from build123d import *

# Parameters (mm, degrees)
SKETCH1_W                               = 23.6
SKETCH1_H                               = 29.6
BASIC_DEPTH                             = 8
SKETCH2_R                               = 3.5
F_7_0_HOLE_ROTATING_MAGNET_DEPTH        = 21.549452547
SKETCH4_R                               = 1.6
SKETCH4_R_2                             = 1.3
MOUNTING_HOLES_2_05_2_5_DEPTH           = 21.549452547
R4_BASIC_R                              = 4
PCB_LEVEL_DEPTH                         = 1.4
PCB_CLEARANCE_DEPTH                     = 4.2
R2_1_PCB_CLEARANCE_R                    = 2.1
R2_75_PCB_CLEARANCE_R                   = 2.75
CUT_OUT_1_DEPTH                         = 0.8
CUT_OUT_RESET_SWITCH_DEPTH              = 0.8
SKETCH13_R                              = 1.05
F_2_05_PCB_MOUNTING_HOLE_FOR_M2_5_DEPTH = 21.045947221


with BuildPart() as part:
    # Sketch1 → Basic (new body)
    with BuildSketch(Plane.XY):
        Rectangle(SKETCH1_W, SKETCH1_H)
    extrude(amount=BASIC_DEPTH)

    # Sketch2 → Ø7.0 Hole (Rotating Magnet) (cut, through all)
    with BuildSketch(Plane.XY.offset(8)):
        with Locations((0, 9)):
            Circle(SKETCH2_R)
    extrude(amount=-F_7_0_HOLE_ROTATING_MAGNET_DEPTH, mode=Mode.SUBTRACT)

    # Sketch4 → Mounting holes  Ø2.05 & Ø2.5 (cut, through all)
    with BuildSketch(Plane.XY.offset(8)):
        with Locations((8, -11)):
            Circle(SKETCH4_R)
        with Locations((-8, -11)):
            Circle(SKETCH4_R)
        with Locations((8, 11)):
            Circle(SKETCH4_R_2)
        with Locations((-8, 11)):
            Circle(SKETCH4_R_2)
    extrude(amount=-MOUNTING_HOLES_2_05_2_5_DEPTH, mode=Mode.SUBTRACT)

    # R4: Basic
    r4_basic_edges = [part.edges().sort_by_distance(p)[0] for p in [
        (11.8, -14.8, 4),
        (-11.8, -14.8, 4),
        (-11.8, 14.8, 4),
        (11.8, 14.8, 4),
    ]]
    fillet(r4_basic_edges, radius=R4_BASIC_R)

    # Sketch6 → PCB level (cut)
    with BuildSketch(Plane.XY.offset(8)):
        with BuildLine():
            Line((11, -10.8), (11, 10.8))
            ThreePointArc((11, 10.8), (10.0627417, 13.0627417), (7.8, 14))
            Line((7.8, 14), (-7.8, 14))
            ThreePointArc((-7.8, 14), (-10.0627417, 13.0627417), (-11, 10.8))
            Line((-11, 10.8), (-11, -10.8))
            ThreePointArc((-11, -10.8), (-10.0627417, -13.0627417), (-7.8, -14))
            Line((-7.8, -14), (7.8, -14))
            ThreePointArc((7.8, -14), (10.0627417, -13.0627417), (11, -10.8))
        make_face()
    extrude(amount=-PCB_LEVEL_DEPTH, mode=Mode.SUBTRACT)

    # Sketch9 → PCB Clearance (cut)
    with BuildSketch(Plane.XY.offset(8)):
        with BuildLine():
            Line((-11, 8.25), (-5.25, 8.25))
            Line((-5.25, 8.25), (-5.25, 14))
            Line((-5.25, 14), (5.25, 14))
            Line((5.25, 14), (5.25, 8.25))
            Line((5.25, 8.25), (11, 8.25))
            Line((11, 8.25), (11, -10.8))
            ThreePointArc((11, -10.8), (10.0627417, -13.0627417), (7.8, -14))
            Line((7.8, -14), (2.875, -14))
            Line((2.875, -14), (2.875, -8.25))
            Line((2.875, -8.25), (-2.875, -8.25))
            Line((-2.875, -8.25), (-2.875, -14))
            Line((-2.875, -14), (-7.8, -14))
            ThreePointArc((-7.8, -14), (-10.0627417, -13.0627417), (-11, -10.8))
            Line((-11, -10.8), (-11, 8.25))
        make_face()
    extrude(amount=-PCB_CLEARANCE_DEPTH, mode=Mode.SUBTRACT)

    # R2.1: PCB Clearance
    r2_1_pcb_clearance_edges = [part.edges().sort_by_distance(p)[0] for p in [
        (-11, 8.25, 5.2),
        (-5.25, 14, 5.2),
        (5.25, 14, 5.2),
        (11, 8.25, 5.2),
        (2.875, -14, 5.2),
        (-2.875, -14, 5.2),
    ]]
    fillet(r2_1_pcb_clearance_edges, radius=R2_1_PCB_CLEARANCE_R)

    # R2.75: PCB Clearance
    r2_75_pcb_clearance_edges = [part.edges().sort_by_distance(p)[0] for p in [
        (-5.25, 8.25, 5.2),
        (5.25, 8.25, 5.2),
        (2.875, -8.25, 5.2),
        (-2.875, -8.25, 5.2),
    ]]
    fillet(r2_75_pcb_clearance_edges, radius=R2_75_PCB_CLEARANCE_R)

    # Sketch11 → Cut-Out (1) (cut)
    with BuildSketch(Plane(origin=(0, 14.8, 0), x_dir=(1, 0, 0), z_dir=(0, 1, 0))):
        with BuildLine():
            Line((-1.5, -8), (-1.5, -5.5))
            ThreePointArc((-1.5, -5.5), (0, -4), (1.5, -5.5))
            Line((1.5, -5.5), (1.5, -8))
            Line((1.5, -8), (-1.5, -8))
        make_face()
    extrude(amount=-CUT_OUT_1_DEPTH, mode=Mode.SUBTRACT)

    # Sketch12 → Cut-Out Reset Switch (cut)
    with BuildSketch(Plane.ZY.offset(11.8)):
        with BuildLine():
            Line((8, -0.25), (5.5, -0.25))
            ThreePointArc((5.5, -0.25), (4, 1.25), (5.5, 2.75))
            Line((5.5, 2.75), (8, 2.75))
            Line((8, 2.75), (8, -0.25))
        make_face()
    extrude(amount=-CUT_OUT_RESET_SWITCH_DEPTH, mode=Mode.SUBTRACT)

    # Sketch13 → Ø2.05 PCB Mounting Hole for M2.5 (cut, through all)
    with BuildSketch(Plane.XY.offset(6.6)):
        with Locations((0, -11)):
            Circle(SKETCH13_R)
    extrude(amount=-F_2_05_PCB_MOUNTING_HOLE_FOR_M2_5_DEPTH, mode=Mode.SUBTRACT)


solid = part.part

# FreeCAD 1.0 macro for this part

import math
import FreeCAD as App
import Part
import Sketcher
Q = App.Units.Quantity


def edges_at(feature, points):
    """Names of the edges that pass closest to the given points."""
    edges = feature.Shape.Edges
    near = lambda p: min(range(len(edges)), key=lambda i: edges[i].distToShape(Part.Vertex(*p))[0])
    return sorted({f"Edge{near(p) + 1}" for p in points})


def add_polygon(sketch, points):
    """Adds a closed chain of lines whose ends are joined by coincident constraints."""
    first, n = sketch.GeometryCount, len(points)
    for a, b in zip(points, points[1:] + points[:1]):
        sketch.addGeometry(Part.LineSegment(App.Vector(*a, 0), App.Vector(*b, 0)), False)
    for i in range(n):
        sketch.addConstraint(Sketcher.Constraint("Coincident", first + i, 2, first + (i + 1) % n, 1))

doc = App.newDocument("Part")
params = doc.addObject("Spreadsheet::Sheet", "Params")
for row, (alias, value) in enumerate([
    ("sketch1_width", "23.6 mm"),
    ("sketch1_height", "29.6 mm"),
    ("pad1_length", "8 mm"),
    ("sketch2_diameter", "7 mm"),
    ("sketch3_diameter", "3.2 mm"),
    ("sketch3_diameter2", "2.6 mm"),
    ("fillet_radius", "4 mm"),
    ("sketch4_radius", "3.2 mm"),
    ("sketch4_width", "15.6 mm"),
    ("sketch4_height", "21.6 mm"),
    ("pocket3_length", "1.4 mm"),
    ("sketch5_radius", "3.2 mm"),
    ("sketch5_width", "10.5 mm"),
    ("pocket4_length", "4.2 mm"),
    ("fillet2_radius", "2.1 mm"),
    ("fillet3_radius", "2.75 mm"),
    ("sketch6_radius", "1.5 mm"),
    ("sketch6_height", "2.5 mm"),
    ("pocket5_length", "0.8 mm"),
    ("sketch7_radius", "1.5 mm"),
    ("sketch7_height", "2.5 mm"),
    ("pocket6_length", "0.8 mm"),
    ("sketch8_diameter", "2.1 mm"),
], start=1):
    params.set(f"A{row}", alias)
    params.set(f"B{row}", "=" + value)
    params.setAlias(f"B{row}", alias)

body = doc.addObject("PartDesign::Body", "Body")

sketch1 = body.newObject("Sketcher::SketchObject", "Sketch")
sketch1.AttachmentSupport = (doc.getObject("XY_Plane"), [""])
sketch1.MapMode = "FlatFace"
add_polygon(sketch1, [(-12, 15), (-12, -15), (12, -15), (12, 15)])
sketch1.addConstraint([
    Sketcher.Constraint("Vertical", 0),
    Sketcher.Constraint("Horizontal", 1),
    Sketcher.Constraint("Vertical", 2),
    Sketcher.Constraint("Horizontal", 3),
    Sketcher.Constraint("Symmetric", 0, 2, 2, 2, -1, 1),
    Sketcher.Constraint("DistanceX", 1, 1, 1, 2, Q("23.6 mm")),
    Sketcher.Constraint("DistanceY", 0, 2, 0, 1, Q("29.6 mm")),
])
sketch1.setExpression("Constraints[9]", "Params.sketch1_width")
sketch1.setExpression("Constraints[10]", "Params.sketch1_height")
pad1 = body.newObject("PartDesign::Pad", "Pad")
pad1.Profile = sketch1
pad1.setExpression("Length", "Params.pad1_length")

sketch2 = body.newObject("Sketcher::SketchObject", "Sketch001")
sketch2.AttachmentSupport = (doc.getObject("XY_Plane"), [""])
sketch2.MapMode = "FlatFace"
sketch2.AttachmentOffset = App.Placement(App.Vector(0, 0, 8), App.Rotation())
sketch2.addGeometry(Part.Circle(App.Vector(0, 9, 0), App.Vector(0, 0, 1), 3.5), False)
sketch2.addConstraint([
    Sketcher.Constraint("PointOnObject", 0, 3, -2),
    Sketcher.Constraint("Diameter", 0, Q("7 mm")),
    Sketcher.Constraint("DistanceY", -1, 1, 0, 3, Q("9 mm")),
])
sketch2.setExpression("Constraints[1]", "Params.sketch2_diameter")
pocket1 = body.newObject("PartDesign::Pocket", "Pocket")
pocket1.Profile = sketch2
pocket1.Type = "ThroughAll"

sketch3 = body.newObject("Sketcher::SketchObject", "Sketch002")
sketch3.AttachmentSupport = (doc.getObject("XY_Plane"), [""])
sketch3.MapMode = "FlatFace"
sketch3.AttachmentOffset = App.Placement(App.Vector(0, 0, 8), App.Rotation())
sketch3.addGeometry([
    Part.Circle(App.Vector(8, -11, 0), App.Vector(0, 0, 1), 1.6),
    Part.Circle(App.Vector(-8, -11, 0), App.Vector(0, 0, 1), 1.6),
    Part.Circle(App.Vector(8, 11, 0), App.Vector(0, 0, 1), 1.3),
    Part.Circle(App.Vector(-8, 11, 0), App.Vector(0, 0, 1), 1.3),
], False)
sketch3.addConstraint([
    Sketcher.Constraint("Equal", 0, 1),
    Sketcher.Constraint("Equal", 2, 3),
    Sketcher.Constraint("Symmetric", 1, 3, 2, 3, -1, 1),
    Sketcher.Constraint("Symmetric", 0, 3, 3, 3, -1, 1),
    Sketcher.Constraint("Symmetric", 0, 3, 1, 3, -2),
    Sketcher.Constraint("Diameter", 0, Q("3.2 mm")),
    Sketcher.Constraint("Diameter", 2, Q("2.6 mm")),
    Sketcher.Constraint("DistanceX", -1, 1, 0, 3, Q("8 mm")),
    Sketcher.Constraint("DistanceY", 0, 3, -1, 1, Q("11 mm")),
])
sketch3.setExpression("Constraints[5]", "Params.sketch3_diameter")
sketch3.setExpression("Constraints[6]", "Params.sketch3_diameter2")
pocket2 = body.newObject("PartDesign::Pocket", "Pocket001")
pocket2.Profile = sketch3
pocket2.Type = "ThroughAll"
doc.recompute()

fillet = body.newObject("PartDesign::Fillet", "Fillet")
fillet.Base = (pocket2, edges_at(pocket2, [
    (11.8, -14.8, 4),
    (-11.8, -14.8, 4),
    (-11.8, 14.8, 4),
    (11.8, 14.8, 4),
]))
fillet.setExpression("Radius", "Params.fillet_radius")

sketch4 = body.newObject("Sketcher::SketchObject", "Sketch003")
sketch4.AttachmentSupport = (doc.getObject("XY_Plane"), [""])
sketch4.MapMode = "FlatFace"
sketch4.AttachmentOffset = App.Placement(App.Vector(0, 0, 8), App.Rotation())
sketch4.addGeometry([
    Part.LineSegment(App.Vector(11, -10.8, 0), App.Vector(11, 10.8, 0)),
    Part.ArcOfCircle(Part.Circle(App.Vector(7.8, 10.8, 0), App.Vector(0, 0, 1), 3.2), math.radians(0), math.radians(90)),
    Part.LineSegment(App.Vector(7.8, 14, 0), App.Vector(-7.8, 14, 0)),
    Part.ArcOfCircle(Part.Circle(App.Vector(-7.8, 10.8, 0), App.Vector(0, 0, 1), 3.2), math.radians(90), math.radians(180)),
    Part.LineSegment(App.Vector(-11, 10.8, 0), App.Vector(-11, -10.8, 0)),
    Part.ArcOfCircle(Part.Circle(App.Vector(-7.8, -10.8, 0), App.Vector(0, 0, 1), 3.2), math.radians(180), math.radians(270)),
    Part.LineSegment(App.Vector(-7.8, -14, 0), App.Vector(7.8, -14, 0)),
    Part.ArcOfCircle(Part.Circle(App.Vector(7.8, -10.8, 0), App.Vector(0, 0, 1), 3.2), math.radians(-90), math.radians(0)),
], False)
sketch4.addConstraint([
    Sketcher.Constraint("Tangent", 0, 2, 1, 1),
    Sketcher.Constraint("Tangent", 1, 2, 2, 1),
    Sketcher.Constraint("Tangent", 2, 2, 3, 1),
    Sketcher.Constraint("Tangent", 3, 2, 4, 1),
    Sketcher.Constraint("Tangent", 4, 2, 5, 1),
    Sketcher.Constraint("Tangent", 5, 2, 6, 1),
    Sketcher.Constraint("Tangent", 6, 2, 7, 1),
    Sketcher.Constraint("Tangent", 7, 2, 0, 1),
    Sketcher.Constraint("Vertical", 0),
    Sketcher.Constraint("Horizontal", 2),
    Sketcher.Constraint("Vertical", 4),
    Sketcher.Constraint("Horizontal", 6),
    Sketcher.Constraint("Equal", 1, 3),
    Sketcher.Constraint("Equal", 3, 5),
    Sketcher.Constraint("Equal", 5, 7),
    Sketcher.Constraint("Symmetric", 1, 3, 5, 3, -1, 1),
    Sketcher.Constraint("Radius", 1, Q("3.2 mm")),
    Sketcher.Constraint("DistanceX", 2, 2, 2, 1, Q("15.6 mm")),
    Sketcher.Constraint("DistanceY", 0, 1, 0, 2, Q("21.6 mm")),
])
sketch4.setExpression("Constraints[16]", "Params.sketch4_radius")
sketch4.setExpression("Constraints[17]", "Params.sketch4_width")
sketch4.setExpression("Constraints[18]", "Params.sketch4_height")
pocket3 = body.newObject("PartDesign::Pocket", "Pocket002")
pocket3.Profile = sketch4
pocket3.setExpression("Length", "Params.pocket3_length")

sketch5 = body.newObject("Sketcher::SketchObject", "Sketch004")
sketch5.AttachmentSupport = (doc.getObject("XY_Plane"), [""])
sketch5.MapMode = "FlatFace"
sketch5.AttachmentOffset = App.Placement(App.Vector(0, 0, 8), App.Rotation())
sketch5.addGeometry([
    Part.LineSegment(App.Vector(-5.2, 8.2, 0), App.Vector(-11, 8.2, 0)),
    Part.LineSegment(App.Vector(-11, 8.2, 0), App.Vector(-11, -10.8, 0)),
    Part.ArcOfCircle(Part.Circle(App.Vector(-7.8, -10.8, 0), App.Vector(0, 0, 1), 3.2), math.radians(180), math.radians(270)),
    Part.LineSegment(App.Vector(-7.8, -14, 0), App.Vector(-2.9, -14, 0)),
    Part.LineSegment(App.Vector(-2.9, -14, 0), App.Vector(-2.9, -8.2, 0)),
    Part.LineSegment(App.Vector(-2.9, -8.2, 0), App.Vector(2.9, -8.2, 0)),
    Part.LineSegment(App.Vector(2.9, -8.2, 0), App.Vector(2.9, -14, 0)),
    Part.LineSegment(App.Vector(2.9, -14, 0), App.Vector(7.8, -14, 0)),
    Part.ArcOfCircle(Part.Circle(App.Vector(7.8, -10.8, 0), App.Vector(0, 0, 1), 3.2), math.radians(-90), math.radians(0)),
    Part.LineSegment(App.Vector(11, -10.8, 0), App.Vector(11, 8.2, 0)),
    Part.LineSegment(App.Vector(11, 8.2, 0), App.Vector(5.2, 8.2, 0)),
    Part.LineSegment(App.Vector(5.2, 8.2, 0), App.Vector(5.2, 14, 0)),
    Part.LineSegment(App.Vector(5.2, 14, 0), App.Vector(-5.2, 14, 0)),
    Part.LineSegment(App.Vector(-5.2, 14, 0), App.Vector(-5.2, 8.2, 0)),
], False)
sketch5.addConstraint([
    Sketcher.Constraint("Coincident", 0, 2, 1, 1),
    Sketcher.Constraint("Tangent", 1, 2, 2, 1),
    Sketcher.Constraint("Tangent", 2, 2, 3, 1),
    Sketcher.Constraint("Coincident", 3, 2, 4, 1),
    Sketcher.Constraint("Coincident", 4, 2, 5, 1),
    Sketcher.Constraint("Coincident", 5, 2, 6, 1),
    Sketcher.Constraint("Coincident", 6, 2, 7, 1),
    Sketcher.Constraint("Tangent", 7, 2, 8, 1),
    Sketcher.Constraint("Tangent", 8, 2, 9, 1),
    Sketcher.Constraint("Coincident", 9, 2, 10, 1),
    Sketcher.Constraint("Coincident", 10, 2, 11, 1),
    Sketcher.Constraint("Coincident", 11, 2, 12, 1),
    Sketcher.Constraint("Coincident", 12, 2, 13, 1),
    Sketcher.Constraint("Coincident", 13, 2, 0, 1),
    Sketcher.Constraint("Horizontal", 0),
    Sketcher.Constraint("Vertical", 1),
    Sketcher.Constraint("Horizontal", 3),
    Sketcher.Constraint("Vertical", 4),
    Sketcher.Constraint("Horizontal", 5),
    Sketcher.Constraint("Vertical", 6),
    Sketcher.Constraint("Horizontal", 7),
    Sketcher.Constraint("Vertical", 9),
    Sketcher.Constraint("Horizontal", 10),
    Sketcher.Constraint("Vertical", 11),
    Sketcher.Constraint("Horizontal", 12),
    Sketcher.Constraint("Vertical", 13),
    Sketcher.Constraint("Equal", 2, 8),
    Sketcher.Constraint("Symmetric", 2, 3, 8, 3, -2),
    Sketcher.Constraint("Symmetric", 10, 2, 13, 2, -2),
    Sketcher.Constraint("Equal", 0, 5),
    Sketcher.Constraint("Equal", 3, 7),
    Sketcher.Constraint("Equal", 10, 4),
    Sketcher.Constraint("Equal", 6, 11),
    Sketcher.Constraint("Radius", 2, Q("3.2 mm")),
    Sketcher.Constraint("DistanceX", 12, 2, 12, 1, Q("10.5 mm")),
    Sketcher.Constraint("DistanceX", 0, 2, -1, 1, Q("11 mm")),
    Sketcher.Constraint("DistanceY", 2, 2, -1, 1, Q("14 mm")),
    Sketcher.Constraint("DistanceY", -1, 1, 11, 2, Q("14 mm")),
])
sketch5.setExpression("Constraints[33]", "Params.sketch5_radius")
sketch5.setExpression("Constraints[34]", "Params.sketch5_width")
pocket4 = body.newObject("PartDesign::Pocket", "Pocket003")
pocket4.Profile = sketch5
pocket4.setExpression("Length", "Params.pocket4_length")
doc.recompute()

fillet2 = body.newObject("PartDesign::Fillet", "Fillet001")
fillet2.Base = (pocket4, edges_at(pocket4, [
    (-11, 8.25, 5.2),
    (-5.25, 14, 5.2),
    (5.25, 14, 5.2),
    (11, 8.25, 5.2),
    (2.875, -14, 5.2),
    (-2.875, -14, 5.2),
]))
fillet2.setExpression("Radius", "Params.fillet2_radius")
doc.recompute()

fillet3 = body.newObject("PartDesign::Fillet", "Fillet002")
fillet3.Base = (fillet2, edges_at(fillet2, [
    (-5.25, 8.25, 5.2),
    (5.25, 8.25, 5.2),
    (2.875, -8.25, 5.2),
    (-2.875, -8.25, 5.2),
]))
fillet3.setExpression("Radius", "Params.fillet3_radius")

sketch6 = body.newObject("Sketcher::SketchObject", "Sketch005")
sketch6.AttachmentSupport = (doc.getObject("XZ_Plane"), [""])
sketch6.MapMode = "FlatFace"
sketch6.AttachmentOffset = App.Placement(App.Vector(0, 0, -14.8), App.Rotation())
sketch6.addGeometry([
    Part.LineSegment(App.Vector(-1.5, 5.5, 0), App.Vector(-1.5, 8, 0)),
    Part.LineSegment(App.Vector(-1.5, 8, 0), App.Vector(1.5, 8, 0)),
    Part.LineSegment(App.Vector(1.5, 8, 0), App.Vector(1.5, 5.5, 0)),
    Part.ArcOfCircle(Part.Circle(App.Vector(0, 5.5, 0), App.Vector(0, 0, 1), 1.5), math.radians(180), math.radians(360)),
], False)
sketch6.addConstraint([
    Sketcher.Constraint("Coincident", 0, 2, 1, 1),
    Sketcher.Constraint("Coincident", 1, 2, 2, 1),
    Sketcher.Constraint("Tangent", 2, 2, 3, 2),
    Sketcher.Constraint("Tangent", 3, 1, 0, 1),
    Sketcher.Constraint("Vertical", 0),
    Sketcher.Constraint("Horizontal", 1),
    Sketcher.Constraint("Vertical", 2),
    Sketcher.Constraint("PointOnObject", 3, 3, -2),
    Sketcher.Constraint("Radius", 3, Q("1.5 mm")),
    Sketcher.Constraint("DistanceY", 0, 1, 0, 2, Q("2.5 mm")),
    Sketcher.Constraint("DistanceY", -1, 1, 0, 2, Q("8 mm")),
])
sketch6.setExpression("Constraints[8]", "Params.sketch6_radius")
sketch6.setExpression("Constraints[9]", "Params.sketch6_height")
pocket5 = body.newObject("PartDesign::Pocket", "Pocket004")
pocket5.Profile = sketch6
pocket5.setExpression("Length", "Params.pocket5_length")
pocket5.Reversed = True

sketch7 = body.newObject("Sketcher::SketchObject", "Sketch006")
sketch7.AttachmentSupport = (doc.getObject("YZ_Plane"), [""])
sketch7.MapMode = "FlatFace"
sketch7.AttachmentOffset = App.Placement(App.Vector(0, 0, -11.8), App.Rotation())
sketch7.addGeometry([
    Part.LineSegment(App.Vector(-0.2, 5.5, 0), App.Vector(-0.2, 8, 0)),
    Part.LineSegment(App.Vector(-0.2, 8, 0), App.Vector(2.8, 8, 0)),
    Part.LineSegment(App.Vector(2.8, 8, 0), App.Vector(2.8, 5.5, 0)),
    Part.ArcOfCircle(Part.Circle(App.Vector(1.2, 5.5, 0), App.Vector(0, 0, 1), 1.5), math.radians(180), math.radians(360)),
], False)
sketch7.addConstraint([
    Sketcher.Constraint("Coincident", 0, 2, 1, 1),
    Sketcher.Constraint("Coincident", 1, 2, 2, 1),
    Sketcher.Constraint("Tangent", 2, 2, 3, 2),
    Sketcher.Constraint("Tangent", 3, 1, 0, 1),
    Sketcher.Constraint("Vertical", 0),
    Sketcher.Constraint("Horizontal", 1),
    Sketcher.Constraint("Vertical", 2),
    Sketcher.Constraint("Radius", 3, Q("1.5 mm")),
    Sketcher.Constraint("DistanceY", 0, 1, 0, 2, Q("2.5 mm")),
    Sketcher.Constraint("DistanceY", -1, 1, 0, 2, Q("8 mm")),
    Sketcher.Constraint("DistanceX", -1, 1, 3, 3, Q("1.25 mm")),
])
sketch7.setExpression("Constraints[7]", "Params.sketch7_radius")
sketch7.setExpression("Constraints[8]", "Params.sketch7_height")
pocket6 = body.newObject("PartDesign::Pocket", "Pocket005")
pocket6.Profile = sketch7
pocket6.setExpression("Length", "Params.pocket6_length")
pocket6.Reversed = True

sketch8 = body.newObject("Sketcher::SketchObject", "Sketch007")
sketch8.AttachmentSupport = (doc.getObject("XY_Plane"), [""])
sketch8.MapMode = "FlatFace"
sketch8.AttachmentOffset = App.Placement(App.Vector(0, 0, 6.6), App.Rotation())
sketch8.addGeometry(Part.Circle(App.Vector(0, -11, 0), App.Vector(0, 0, 1), 1.1), False)
sketch8.addConstraint([
    Sketcher.Constraint("PointOnObject", 0, 3, -2),
    Sketcher.Constraint("Diameter", 0, Q("2.1 mm")),
    Sketcher.Constraint("DistanceY", 0, 3, -1, 1, Q("11 mm")),
])
sketch8.setExpression("Constraints[1]", "Params.sketch8_diameter")
pocket7 = body.newObject("PartDesign::Pocket", "Pocket006")
pocket7.Profile = sketch8
pocket7.Type = "ThroughAll"

doc.recompute()
